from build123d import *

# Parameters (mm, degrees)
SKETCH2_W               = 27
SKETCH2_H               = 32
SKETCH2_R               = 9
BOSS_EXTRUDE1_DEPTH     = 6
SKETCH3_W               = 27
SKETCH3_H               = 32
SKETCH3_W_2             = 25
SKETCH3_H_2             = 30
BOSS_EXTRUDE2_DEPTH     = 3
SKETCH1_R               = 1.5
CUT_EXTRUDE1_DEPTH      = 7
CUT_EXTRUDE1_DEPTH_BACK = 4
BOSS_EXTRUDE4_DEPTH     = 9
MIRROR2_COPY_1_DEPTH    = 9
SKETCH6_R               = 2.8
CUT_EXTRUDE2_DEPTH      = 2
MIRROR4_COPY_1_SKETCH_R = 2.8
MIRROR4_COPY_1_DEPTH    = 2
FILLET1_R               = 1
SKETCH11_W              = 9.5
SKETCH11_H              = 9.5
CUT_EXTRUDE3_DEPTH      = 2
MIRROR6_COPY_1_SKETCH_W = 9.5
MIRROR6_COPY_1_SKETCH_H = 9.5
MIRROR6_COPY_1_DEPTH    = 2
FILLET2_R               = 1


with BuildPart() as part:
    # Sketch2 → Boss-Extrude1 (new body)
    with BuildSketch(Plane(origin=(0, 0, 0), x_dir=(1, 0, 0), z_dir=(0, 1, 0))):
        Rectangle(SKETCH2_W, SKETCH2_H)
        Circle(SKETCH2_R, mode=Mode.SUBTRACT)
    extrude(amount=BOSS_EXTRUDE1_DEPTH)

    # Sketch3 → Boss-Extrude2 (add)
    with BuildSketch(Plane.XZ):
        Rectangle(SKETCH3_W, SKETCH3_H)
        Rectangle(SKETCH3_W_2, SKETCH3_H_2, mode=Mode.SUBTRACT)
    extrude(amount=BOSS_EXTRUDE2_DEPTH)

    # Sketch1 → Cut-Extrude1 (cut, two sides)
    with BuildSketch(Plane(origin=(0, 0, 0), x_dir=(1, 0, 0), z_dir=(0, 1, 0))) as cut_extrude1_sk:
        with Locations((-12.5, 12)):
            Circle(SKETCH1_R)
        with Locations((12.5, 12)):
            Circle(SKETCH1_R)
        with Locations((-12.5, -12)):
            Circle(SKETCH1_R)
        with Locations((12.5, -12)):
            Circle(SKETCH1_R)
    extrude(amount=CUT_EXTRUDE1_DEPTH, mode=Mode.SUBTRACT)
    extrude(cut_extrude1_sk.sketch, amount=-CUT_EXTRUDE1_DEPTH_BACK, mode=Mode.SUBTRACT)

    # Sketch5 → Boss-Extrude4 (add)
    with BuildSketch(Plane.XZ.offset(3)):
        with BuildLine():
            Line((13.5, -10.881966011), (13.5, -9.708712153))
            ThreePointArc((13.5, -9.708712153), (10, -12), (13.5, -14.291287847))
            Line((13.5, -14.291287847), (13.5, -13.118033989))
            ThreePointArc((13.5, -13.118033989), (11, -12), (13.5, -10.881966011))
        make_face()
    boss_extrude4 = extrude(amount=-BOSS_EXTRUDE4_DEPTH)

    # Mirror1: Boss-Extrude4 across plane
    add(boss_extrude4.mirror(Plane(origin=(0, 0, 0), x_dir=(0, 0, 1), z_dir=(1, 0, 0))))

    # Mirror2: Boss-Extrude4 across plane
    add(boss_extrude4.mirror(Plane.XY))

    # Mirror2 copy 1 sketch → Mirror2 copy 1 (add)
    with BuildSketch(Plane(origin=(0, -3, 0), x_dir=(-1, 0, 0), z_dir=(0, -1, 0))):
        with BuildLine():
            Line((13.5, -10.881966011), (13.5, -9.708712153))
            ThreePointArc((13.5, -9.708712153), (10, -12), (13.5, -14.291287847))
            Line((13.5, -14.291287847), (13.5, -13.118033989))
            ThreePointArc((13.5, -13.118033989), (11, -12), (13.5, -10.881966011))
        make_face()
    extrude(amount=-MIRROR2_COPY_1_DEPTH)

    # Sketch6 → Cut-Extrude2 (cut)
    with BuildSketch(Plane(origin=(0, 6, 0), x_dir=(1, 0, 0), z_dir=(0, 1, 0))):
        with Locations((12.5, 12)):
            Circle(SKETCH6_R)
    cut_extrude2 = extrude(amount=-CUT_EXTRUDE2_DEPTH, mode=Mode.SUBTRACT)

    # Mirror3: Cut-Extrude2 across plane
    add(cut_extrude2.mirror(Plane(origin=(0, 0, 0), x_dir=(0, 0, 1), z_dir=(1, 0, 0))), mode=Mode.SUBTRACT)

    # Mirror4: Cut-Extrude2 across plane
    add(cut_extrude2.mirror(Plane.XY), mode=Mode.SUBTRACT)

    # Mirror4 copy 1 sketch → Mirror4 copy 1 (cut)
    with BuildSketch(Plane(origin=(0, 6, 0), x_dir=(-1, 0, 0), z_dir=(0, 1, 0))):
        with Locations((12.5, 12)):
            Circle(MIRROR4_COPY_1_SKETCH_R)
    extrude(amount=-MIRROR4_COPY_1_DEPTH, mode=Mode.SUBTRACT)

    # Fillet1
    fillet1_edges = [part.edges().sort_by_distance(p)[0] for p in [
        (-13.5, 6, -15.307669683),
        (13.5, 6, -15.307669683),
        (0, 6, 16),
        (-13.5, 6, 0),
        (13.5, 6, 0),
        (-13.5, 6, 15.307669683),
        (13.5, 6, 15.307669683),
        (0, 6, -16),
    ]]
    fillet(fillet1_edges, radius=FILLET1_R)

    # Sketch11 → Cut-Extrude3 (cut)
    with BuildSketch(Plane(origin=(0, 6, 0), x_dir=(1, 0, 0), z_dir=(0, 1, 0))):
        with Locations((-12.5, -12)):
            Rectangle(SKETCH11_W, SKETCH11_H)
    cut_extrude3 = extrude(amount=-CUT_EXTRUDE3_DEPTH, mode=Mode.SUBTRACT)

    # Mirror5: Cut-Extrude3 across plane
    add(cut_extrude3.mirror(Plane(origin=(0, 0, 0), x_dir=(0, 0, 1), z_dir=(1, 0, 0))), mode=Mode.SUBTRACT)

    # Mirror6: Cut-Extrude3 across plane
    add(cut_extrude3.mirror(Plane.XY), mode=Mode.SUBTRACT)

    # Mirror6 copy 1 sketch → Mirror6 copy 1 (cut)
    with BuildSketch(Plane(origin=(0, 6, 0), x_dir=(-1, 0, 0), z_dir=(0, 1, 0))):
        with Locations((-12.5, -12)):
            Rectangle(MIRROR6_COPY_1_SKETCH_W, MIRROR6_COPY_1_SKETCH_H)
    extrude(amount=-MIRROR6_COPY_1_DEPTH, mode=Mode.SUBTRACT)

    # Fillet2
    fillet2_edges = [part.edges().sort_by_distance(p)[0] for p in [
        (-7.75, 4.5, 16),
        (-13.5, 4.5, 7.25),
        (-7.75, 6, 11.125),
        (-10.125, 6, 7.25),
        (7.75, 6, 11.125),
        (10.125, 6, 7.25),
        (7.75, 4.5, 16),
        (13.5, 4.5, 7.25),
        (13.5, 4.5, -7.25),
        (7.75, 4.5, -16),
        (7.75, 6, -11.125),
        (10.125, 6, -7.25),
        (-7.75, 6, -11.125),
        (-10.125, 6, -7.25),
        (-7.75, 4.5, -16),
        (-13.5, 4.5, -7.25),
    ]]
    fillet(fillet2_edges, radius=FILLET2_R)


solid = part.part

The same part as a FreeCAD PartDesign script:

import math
import FreeCAD as App
import Part
import Sketcher

V = App.Vector
Q = App.Units.Quantity


def edges_at(feature, points):
    """Names of the edges that pass closest to the given points."""
    edges = feature.Shape.Edges
    near = lambda p: min(range(len(edges)), key=lambda i: edges[i].distToShape(Part.Vertex(*p))[0])
    return sorted({f"Edge{near(p) + 1}" for p in points})


def add_polygon(sketch, points):
    """Adds a closed chain of lines whose ends are joined by coincident constraints."""
    first, n = sketch.GeometryCount, len(points)
    for a, b in zip(points, points[1:] + points[:1]):
        sketch.addGeometry(Part.LineSegment(App.Vector(*a, 0), App.Vector(*b, 0)), False)
    for i in range(n):
        sketch.addConstraint(Sketcher.Constraint("Coincident", first + i, 2, first + (i + 1) % n, 1))

doc = App.newDocument("Part")
params = doc.addObject("Spreadsheet::Sheet", "Params")
for row, (alias, value) in enumerate([
    ("sketch1_diameter", "18 mm"),
    ("sketch1_width", "27 mm"),
    ("sketch1_height", "32 mm"),
    ("pad1_length", "6 mm"),
    ("sketch2_width", "27 mm"),
    ("sketch2_width2", "25 mm"),
    ("sketch2_height", "32 mm"),
    ("sketch2_height2", "30 mm"),
    ("pad2_length", "3 mm"),
    ("sketch3_diameter", "3 mm"),
    ("sketch4_radius", "2.5 mm"),
    ("sketch4_radius2", "1.5 mm"),
    ("pad3_length", "9 mm"),
    ("sketch5_radius", "2.5 mm"),
    ("sketch5_radius2", "1.5 mm"),
    ("pad4_length", "9 mm"),
    ("sketch6_diameter", "5.6 mm"),
    ("pocket2_length", "2 mm"),
    ("sketch7_diameter", "5.6 mm"),
    ("pocket3_length", "2 mm"),
    ("fillet_radius", "1 mm"),
    ("sketch8_width", "9.5 mm"),
    ("pocket4_length", "2 mm"),
    ("sketch9_width", "9.5 mm"),
    ("pocket5_length", "2 mm"),
    ("fillet2_radius", "1 mm"),
], start=1):
    params.set(f"A{row}", alias)
    params.set(f"B{row}", "=" + value)
    params.setAlias(f"B{row}", alias)

body = doc.addObject("PartDesign::Body", "Body")

# Sketch on XZ plane
sketch1 = body.newObject("Sketcher::SketchObject", "Sketch")
sketch1.AttachmentSupport = (doc.getObject("XZ_Plane"), [""])
sketch1.MapMode = "FlatFace"
add_polygon(sketch1, [(-13.5, -16), (-13.5, 16), (13.5, 16), (13.5, -16)])  # lines 0-3
sketch1.addGeometry(Part.Circle(V(0, 0, 0), V(0, 0, 1), 9), False)  # 4
sketch1.addConstraint([
    Sketcher.Constraint("Vertical", 0),
    Sketcher.Constraint("Horizontal", 1),
    Sketcher.Constraint("Vertical", 2),
    Sketcher.Constraint("Horizontal", 3),
    Sketcher.Constraint("Coincident", 4, 3, -1, 1),
    Sketcher.Constraint("Symmetric", 0, 2, 2, 2, -1, 1),
    Sketcher.Constraint("Diameter", 4, Q("18 mm")),
    Sketcher.Constraint("DistanceX", 1, 1, 1, 2, Q("27 mm")),
    Sketcher.Constraint("DistanceY", 0, 1, 0, 2, Q("32 mm")),
])
sketch1.setExpression("Constraints[10]", "Params.sketch1_diameter")
sketch1.setExpression("Constraints[11]", "Params.sketch1_width")
sketch1.setExpression("Constraints[12]", "Params.sketch1_height")
pad1 = body.newObject("PartDesign::Pad", "Pad")
pad1.Profile = sketch1
pad1.setExpression("Length", "Params.pad1_length")
pad1.Reversed = True

# Sketch on XZ plane
sketch2 = body.newObject("Sketcher::SketchObject", "Sketch001")
sketch2.AttachmentSupport = (doc.getObject("XZ_Plane"), [""])
sketch2.MapMode = "FlatFace"
add_polygon(sketch2, [(-13.5, 16), (-13.5, -16), (13.5, -16), (13.5, 16)])  # lines 0-3
add_polygon(sketch2, [(12.5, -15), (-12.5, -15), (-12.5, 15), (12.5, 15)])  # lines 4-7
sketch2.addConstraint([
    Sketcher.Constraint("Vertical", 0),
    Sketcher.Constraint("Horizontal", 1),
    Sketcher.Constraint("Vertical", 2),
    Sketcher.Constraint("Horizontal", 3),
    Sketcher.Constraint("Horizontal", 4),
    Sketcher.Constraint("Vertical", 5),
    Sketcher.Constraint("Horizontal", 6),
    Sketcher.Constraint("Vertical", 7),
    Sketcher.Constraint("Symmetric", 0, 2, 2, 2, -1, 1),
    Sketcher.Constraint("Symmetric", 4, 2, 6, 2, -1, 1),
    Sketcher.Constraint("DistanceX", 1, 1, 1, 2, Q("27 mm")),
    Sketcher.Constraint("DistanceX", 4, 2, 4, 1, Q("25 mm")),
    Sketcher.Constraint("DistanceY", 0, 2, 0, 1, Q("32 mm")),
    Sketcher.Constraint("DistanceY", 5, 1, 5, 2, Q("30 mm")),
])
sketch2.setExpression("Constraints[18]", "Params.sketch2_width")
sketch2.setExpression("Constraints[19]", "Params.sketch2_width2")
sketch2.setExpression("Constraints[20]", "Params.sketch2_height")
sketch2.setExpression("Constraints[21]", "Params.sketch2_height2")
pad2 = body.newObject("PartDesign::Pad", "Pad001")
pad2.Profile = sketch2
pad2.setExpression("Length", "Params.pad2_length")

# Sketch on XZ plane
sketch3 = body.newObject("Sketcher::SketchObject", "Sketch002")
sketch3.AttachmentSupport = (doc.getObject("XZ_Plane"), [""])
sketch3.MapMode = "FlatFace"
sketch3.addGeometry([
    Part.Circle(V(-12.5, -12, 0), V(0, 0, 1), 1.5),
    Part.Circle(V(12.5, -12, 0), V(0, 0, 1), 1.5),
    Part.Circle(V(-12.5, 12, 0), V(0, 0, 1), 1.5),
    Part.Circle(V(12.5, 12, 0), V(0, 0, 1), 1.5),
], False)
sketch3.addConstraint([
    Sketcher.Constraint("Equal", 0, 1),
    Sketcher.Constraint("Equal", 1, 2),
    Sketcher.Constraint("Equal", 2, 3),
    Sketcher.Constraint("Symmetric", 1, 3, 2, 3, -1, 1),
    Sketcher.Constraint("Symmetric", 0, 3, 3, 3, -1, 1),
    Sketcher.Constraint("Symmetric", 0, 3, 1, 3, -2),
    Sketcher.Constraint("Diameter", 0, Q("3 mm")),
    Sketcher.Constraint("DistanceY", 0, 3, -1, 1, Q("12 mm")),
    Sketcher.Constraint("DistanceX", 0, 3, 1, 3, Q("25 mm")),
])
sketch3.setExpression("Constraints[6]", "Params.sketch3_diameter")
pocket1 = body.newObject("PartDesign::Pocket", "Pocket")
pocket1.Profile = sketch3
pocket1.Type = "ThroughAll"
pocket1.Midplane = True

# Sketch on XZ plane
sketch4 = body.newObject("Sketcher::SketchObject", "Sketch003")
sketch4.AttachmentSupport = (doc.getObject("XZ_Plane"), [""])
sketch4.MapMode = "FlatFace"
sketch4.AttachmentOffset = App.Placement(V(0, 0, 3), App.Rotation())
sketch4.addGeometry([
    Part.LineSegment(V(13.5, -10.881966, 0), V(13.5, -9.708712, 0)),
    Part.ArcOfCircle(Part.Circle(V(12.5, -12, 0), V(0, 0, 1), 2.5), math.radians(66.421822), math.radians(293.578178)),
    Part.LineSegment(V(13.5, -14.291288, 0), V(13.5, -13.118034, 0)),
    Part.ArcOfCircle(Part.Circle(V(12.5, -12, 0), V(0, 0, 1), 1.5), math.radians(48.189685), math.radians(311.810315)),
], False)
sketch4.addConstraint([
    Sketcher.Constraint("Coincident", 0, 2, 1, 1),
    Sketcher.Constraint("Coincident", 1, 2, 2, 1),
    Sketcher.Constraint("Coincident", 2, 2, 3, 2),
    Sketcher.Constraint("Coincident", 3, 1, 0, 1),
    Sketcher.Constraint("Vertical", 0),
    Sketcher.Constraint("Vertical", 2),
    Sketcher.Constraint("Coincident", 3, 3, 1, 3),
    Sketcher.Constraint("Vertical", 0, 2, 1, 2),
    Sketcher.Constraint("Radius", 1, Q("2.5 mm")),
    Sketcher.Constraint("Radius", 3, Q("1.5 mm")),
    Sketcher.Constraint("DistanceY", 1, 3, -1, 1, Q("12 mm")),
    Sketcher.Constraint("DistanceX", 1, 3, 0, 2, Q("1 mm")),
    Sketcher.Constraint("DistanceX", -1, 1, 1, 3, Q("12.5 mm")),
])
sketch4.setExpression("Constraints[8]", "Params.sketch4_radius")
sketch4.setExpression("Constraints[9]", "Params.sketch4_radius2")
pad3 = body.newObject("PartDesign::Pad", "Pad002")
pad3.Profile = sketch4
pad3.setExpression("Length", "Params.pad3_length")
pad3.Reversed = True
doc.recompute()

mirrored = body.newObject("PartDesign::Mirrored", "Mirrored")
mirrored.Originals = [pad3]
mirrored.MirrorPlane = (doc.getObject("YZ_Plane"), [""])
body.Tip = mirrored
doc.recompute()

mirrored2 = body.newObject("PartDesign::Mirrored", "Mirrored001")
mirrored2.Originals = [pad3]
mirrored2.MirrorPlane = (doc.getObject("XY_Plane"), [""])
body.Tip = mirrored2

# Sketch on XZ plane
sketch5 = body.newObject("Sketcher::SketchObject", "Sketch004")
sketch5.AttachmentSupport = (doc.getObject("XZ_Plane"), [""])
sketch5.MapMode = "FlatFace"
sketch5.AttachmentOffset = App.Placement(V(0, 0, 3), App.Rotation())
sketch5.addGeometry([
    Part.LineSegment(V(-13.5, 10.881966, 0), V(-13.5, 9.708712, 0)),
    Part.ArcOfCircle(Part.Circle(V(-12.5, 12, 0), V(0, 0, 1), 2.5), math.radians(-113.578178), math.radians(113.578178)),
    Part.LineSegment(V(-13.5, 14.291288, 0), V(-13.5, 13.118034, 0)),
    Part.ArcOfCircle(Part.Circle(V(-12.5, 12, 0), V(0, 0, 1), 1.5), math.radians(-131.810315), math.radians(131.810315)),
], False)
sketch5.addConstraint([
    Sketcher.Constraint("Coincident", 0, 2, 1, 1),
    Sketcher.Constraint("Coincident", 1, 2, 2, 1),
    Sketcher.Constraint("Coincident", 2, 2, 3, 2),
    Sketcher.Constraint("Coincident", 3, 1, 0, 1),
    Sketcher.Constraint("Vertical", 0),
    Sketcher.Constraint("Vertical", 2),
    Sketcher.Constraint("Coincident", 3, 3, 1, 3),
    Sketcher.Constraint("Vertical", 0, 2, 1, 2),
    Sketcher.Constraint("Radius", 1, Q("2.5 mm")),
    Sketcher.Constraint("Radius", 3, Q("1.5 mm")),
    Sketcher.Constraint("DistanceY", -1, 1, 1, 3, Q("12 mm")),
    Sketcher.Constraint("DistanceX", 0, 2, 1, 3, Q("1 mm")),
    Sketcher.Constraint("DistanceX", 1, 3, -1, 1, Q("12.5 mm")),
])
sketch5.setExpression("Constraints[8]", "Params.sketch5_radius")
sketch5.setExpression("Constraints[9]", "Params.sketch5_radius2")
pad4 = body.newObject("PartDesign::Pad", "Pad003")
pad4.Profile = sketch5
pad4.setExpression("Length", "Params.pad4_length")
pad4.Reversed = True

# Sketch on XZ plane
sketch6 = body.newObject("Sketcher::SketchObject", "Sketch005")
sketch6.AttachmentSupport = (doc.getObject("XZ_Plane"), [""])
sketch6.MapMode = "FlatFace"
sketch6.AttachmentOffset = App.Placement(V(0, 0, -6), App.Rotation())
sketch6.addGeometry(Part.Circle(V(12.5, -12, 0), V(0, 0, 1), 2.8), False)
sketch6.addConstraint([
    Sketcher.Constraint("Diameter", 0, Q("5.6 mm")),
    Sketcher.Constraint("DistanceY", 0, 3, -1, 1, Q("12 mm")),
    Sketcher.Constraint("DistanceX", -1, 1, 0, 3, Q("12.5 mm")),
])
sketch6.setExpression("Constraints[0]", "Params.sketch6_diameter")
pocket2 = body.newObject("PartDesign::Pocket", "Pocket001")
pocket2.Profile = sketch6
pocket2.setExpression("Length", "Params.pocket2_length")
pocket2.Reversed = True
doc.recompute()

mirrored3 = body.newObject("PartDesign::Mirrored", "Mirrored002")
mirrored3.Originals = [pocket2]
mirrored3.MirrorPlane = (doc.getObject("YZ_Plane"), [""])
body.Tip = mirrored3
doc.recompute()

mirrored4 = body.newObject("PartDesign::Mirrored", "Mirrored003")
mirrored4.Originals = [pocket2]
mirrored4.MirrorPlane = (doc.getObject("XY_Plane"), [""])
body.Tip = mirrored4

# Sketch on XZ plane
sketch7 = body.newObject("Sketcher::SketchObject", "Sketch006")
sketch7.AttachmentSupport = (doc.getObject("XZ_Plane"), [""])
sketch7.MapMode = "FlatFace"
sketch7.AttachmentOffset = App.Placement(V(0, 0, -6), App.Rotation())
sketch7.addGeometry(Part.Circle(V(-12.5, 12, 0), V(0, 0, 1), 2.8), False)
sketch7.addConstraint([
    Sketcher.Constraint("Diameter", 0, Q("5.6 mm")),
    Sketcher.Constraint("DistanceY", -1, 1, 0, 3, Q("12 mm")),
    Sketcher.Constraint("DistanceX", 0, 3, -1, 1, Q("12.5 mm")),
])
sketch7.setExpression("Constraints[0]", "Params.sketch7_diameter")
pocket3 = body.newObject("PartDesign::Pocket", "Pocket002")
pocket3.Profile = sketch7
pocket3.setExpression("Length", "Params.pocket3_length")
pocket3.Reversed = True
doc.recompute()

fillet = body.newObject("PartDesign::Fillet", "Fillet")
fillet.Base = (pocket3, edges_at(pocket3, [
    (-13.5, 6, -15.308),
    (13.5, 6, -15.308),
    (0, 6, 16),
    (-13.5, 6, 0),
    (13.5, 6, 0),
    (-13.5, 6, 15.308),
    (13.5, 6, 15.308),
    (0, 6, -16),
]))
fillet.setExpression("Radius", "Params.fillet_radius")

# Sketch on XZ plane
sketch8 = body.newObject("Sketcher::SketchObject", "Sketch007")
sketch8.AttachmentSupport = (doc.getObject("XZ_Plane"), [""])
sketch8.MapMode = "FlatFace"
sketch8.AttachmentOffset = App.Placement(V(0, 0, -6), App.Rotation())
add_polygon(sketch8, [(-17.25, 7.25), (-17.25, 16.75), (-7.75, 16.75), (-7.75, 7.25)])  # lines 0-3
sketch8.addConstraint([
    Sketcher.Constraint("Vertical", 0),
    Sketcher.Constraint("Horizontal", 1),
    Sketcher.Constraint("Vertical", 2),
    Sketcher.Constraint("Horizontal", 3),
    Sketcher.Constraint("Equal", 3, 0),
    Sketcher.Constraint("DistanceX", 1, 1, 1, 2, Q("9.5 mm")),
    Sketcher.Constraint("DistanceX", 0, 2, -1, 1, Q("17.25 mm")),
    Sketcher.Constraint("DistanceY", -1, 1, 0, 2, Q("16.75 mm")),
])
sketch8.setExpression("Constraints[9]", "Params.sketch8_width")
pocket4 = body.newObject("PartDesign::Pocket", "Pocket003")
pocket4.Profile = sketch8
pocket4.setExpression("Length", "Params.pocket4_length")
pocket4.Reversed = True
doc.recompute()

mirrored5 = body.newObject("PartDesign::Mirrored", "Mirrored004")
mirrored5.Originals = [pocket4]
mirrored5.MirrorPlane = (doc.getObject("YZ_Plane"), [""])
body.Tip = mirrored5
doc.recompute()

mirrored6 = body.newObject("PartDesign::Mirrored", "Mirrored005")
mirrored6.Originals = [pocket4]
mirrored6.MirrorPlane = (doc.getObject("XY_Plane"), [""])
body.Tip = mirrored6

# Sketch on XZ plane
sketch9 = body.newObject("Sketcher::SketchObject", "Sketch008")
sketch9.AttachmentSupport = (doc.getObject("XZ_Plane"), [""])
sketch9.MapMode = "FlatFace"
sketch9.AttachmentOffset = App.Placement(V(0, 0, -6), App.Rotation())
add_polygon(sketch9, [(17.25, -7.25), (17.25, -16.75), (7.75, -16.75), (7.75, -7.25)])  # lines 0-3
sketch9.addConstraint([
    Sketcher.Constraint("Vertical", 0),
    Sketcher.Constraint("Horizontal", 1),
    Sketcher.Constraint("Vertical", 2),
    Sketcher.Constraint("Horizontal", 3),
    Sketcher.Constraint("Equal", 3, 0),
    Sketcher.Constraint("DistanceX", 1, 2, 1, 1, Q("9.5 mm")),
    Sketcher.Constraint("DistanceX", -1, 1, 0, 2, Q("17.25 mm")),
    Sketcher.Constraint("DistanceY", 0, 2, -1, 1, Q("16.75 mm")),
])
sketch9.setExpression("Constraints[9]", "Params.sketch9_width")
pocket5 = body.newObject("PartDesign::Pocket", "Pocket004")
pocket5.Profile = sketch9
pocket5.setExpression("Length", "Params.pocket5_length")
pocket5.Reversed = True
doc.recompute()

fillet2 = body.newObject("PartDesign::Fillet", "Fillet001")
fillet2.Base = (pocket5, edges_at(pocket5, [
    (-7.75, 4.5, 16),
    (-13.5, 4.5, 7.25),
    (-7.75, 6, 11.125),
    (-10.125, 6, 7.25),
    (7.75, 6, 11.125),
    (10.125, 6, 7.25),
    (7.75, 4.5, 16),
    (13.5, 4.5, 7.25),
    (13.5, 4.5, -7.25),
    (7.75, 4.5, -16),
    (7.75, 6, -11.125),
    (10.125, 6, -7.25),
    (-7.75, 6, -11.125),
    (-10.125, 6, -7.25),
    (-7.75, 4.5, -16),
    (-13.5, 4.5, -7.25),
]))
fillet2.setExpression("Radius", "Params.fillet2_radius")

doc.recompute()
